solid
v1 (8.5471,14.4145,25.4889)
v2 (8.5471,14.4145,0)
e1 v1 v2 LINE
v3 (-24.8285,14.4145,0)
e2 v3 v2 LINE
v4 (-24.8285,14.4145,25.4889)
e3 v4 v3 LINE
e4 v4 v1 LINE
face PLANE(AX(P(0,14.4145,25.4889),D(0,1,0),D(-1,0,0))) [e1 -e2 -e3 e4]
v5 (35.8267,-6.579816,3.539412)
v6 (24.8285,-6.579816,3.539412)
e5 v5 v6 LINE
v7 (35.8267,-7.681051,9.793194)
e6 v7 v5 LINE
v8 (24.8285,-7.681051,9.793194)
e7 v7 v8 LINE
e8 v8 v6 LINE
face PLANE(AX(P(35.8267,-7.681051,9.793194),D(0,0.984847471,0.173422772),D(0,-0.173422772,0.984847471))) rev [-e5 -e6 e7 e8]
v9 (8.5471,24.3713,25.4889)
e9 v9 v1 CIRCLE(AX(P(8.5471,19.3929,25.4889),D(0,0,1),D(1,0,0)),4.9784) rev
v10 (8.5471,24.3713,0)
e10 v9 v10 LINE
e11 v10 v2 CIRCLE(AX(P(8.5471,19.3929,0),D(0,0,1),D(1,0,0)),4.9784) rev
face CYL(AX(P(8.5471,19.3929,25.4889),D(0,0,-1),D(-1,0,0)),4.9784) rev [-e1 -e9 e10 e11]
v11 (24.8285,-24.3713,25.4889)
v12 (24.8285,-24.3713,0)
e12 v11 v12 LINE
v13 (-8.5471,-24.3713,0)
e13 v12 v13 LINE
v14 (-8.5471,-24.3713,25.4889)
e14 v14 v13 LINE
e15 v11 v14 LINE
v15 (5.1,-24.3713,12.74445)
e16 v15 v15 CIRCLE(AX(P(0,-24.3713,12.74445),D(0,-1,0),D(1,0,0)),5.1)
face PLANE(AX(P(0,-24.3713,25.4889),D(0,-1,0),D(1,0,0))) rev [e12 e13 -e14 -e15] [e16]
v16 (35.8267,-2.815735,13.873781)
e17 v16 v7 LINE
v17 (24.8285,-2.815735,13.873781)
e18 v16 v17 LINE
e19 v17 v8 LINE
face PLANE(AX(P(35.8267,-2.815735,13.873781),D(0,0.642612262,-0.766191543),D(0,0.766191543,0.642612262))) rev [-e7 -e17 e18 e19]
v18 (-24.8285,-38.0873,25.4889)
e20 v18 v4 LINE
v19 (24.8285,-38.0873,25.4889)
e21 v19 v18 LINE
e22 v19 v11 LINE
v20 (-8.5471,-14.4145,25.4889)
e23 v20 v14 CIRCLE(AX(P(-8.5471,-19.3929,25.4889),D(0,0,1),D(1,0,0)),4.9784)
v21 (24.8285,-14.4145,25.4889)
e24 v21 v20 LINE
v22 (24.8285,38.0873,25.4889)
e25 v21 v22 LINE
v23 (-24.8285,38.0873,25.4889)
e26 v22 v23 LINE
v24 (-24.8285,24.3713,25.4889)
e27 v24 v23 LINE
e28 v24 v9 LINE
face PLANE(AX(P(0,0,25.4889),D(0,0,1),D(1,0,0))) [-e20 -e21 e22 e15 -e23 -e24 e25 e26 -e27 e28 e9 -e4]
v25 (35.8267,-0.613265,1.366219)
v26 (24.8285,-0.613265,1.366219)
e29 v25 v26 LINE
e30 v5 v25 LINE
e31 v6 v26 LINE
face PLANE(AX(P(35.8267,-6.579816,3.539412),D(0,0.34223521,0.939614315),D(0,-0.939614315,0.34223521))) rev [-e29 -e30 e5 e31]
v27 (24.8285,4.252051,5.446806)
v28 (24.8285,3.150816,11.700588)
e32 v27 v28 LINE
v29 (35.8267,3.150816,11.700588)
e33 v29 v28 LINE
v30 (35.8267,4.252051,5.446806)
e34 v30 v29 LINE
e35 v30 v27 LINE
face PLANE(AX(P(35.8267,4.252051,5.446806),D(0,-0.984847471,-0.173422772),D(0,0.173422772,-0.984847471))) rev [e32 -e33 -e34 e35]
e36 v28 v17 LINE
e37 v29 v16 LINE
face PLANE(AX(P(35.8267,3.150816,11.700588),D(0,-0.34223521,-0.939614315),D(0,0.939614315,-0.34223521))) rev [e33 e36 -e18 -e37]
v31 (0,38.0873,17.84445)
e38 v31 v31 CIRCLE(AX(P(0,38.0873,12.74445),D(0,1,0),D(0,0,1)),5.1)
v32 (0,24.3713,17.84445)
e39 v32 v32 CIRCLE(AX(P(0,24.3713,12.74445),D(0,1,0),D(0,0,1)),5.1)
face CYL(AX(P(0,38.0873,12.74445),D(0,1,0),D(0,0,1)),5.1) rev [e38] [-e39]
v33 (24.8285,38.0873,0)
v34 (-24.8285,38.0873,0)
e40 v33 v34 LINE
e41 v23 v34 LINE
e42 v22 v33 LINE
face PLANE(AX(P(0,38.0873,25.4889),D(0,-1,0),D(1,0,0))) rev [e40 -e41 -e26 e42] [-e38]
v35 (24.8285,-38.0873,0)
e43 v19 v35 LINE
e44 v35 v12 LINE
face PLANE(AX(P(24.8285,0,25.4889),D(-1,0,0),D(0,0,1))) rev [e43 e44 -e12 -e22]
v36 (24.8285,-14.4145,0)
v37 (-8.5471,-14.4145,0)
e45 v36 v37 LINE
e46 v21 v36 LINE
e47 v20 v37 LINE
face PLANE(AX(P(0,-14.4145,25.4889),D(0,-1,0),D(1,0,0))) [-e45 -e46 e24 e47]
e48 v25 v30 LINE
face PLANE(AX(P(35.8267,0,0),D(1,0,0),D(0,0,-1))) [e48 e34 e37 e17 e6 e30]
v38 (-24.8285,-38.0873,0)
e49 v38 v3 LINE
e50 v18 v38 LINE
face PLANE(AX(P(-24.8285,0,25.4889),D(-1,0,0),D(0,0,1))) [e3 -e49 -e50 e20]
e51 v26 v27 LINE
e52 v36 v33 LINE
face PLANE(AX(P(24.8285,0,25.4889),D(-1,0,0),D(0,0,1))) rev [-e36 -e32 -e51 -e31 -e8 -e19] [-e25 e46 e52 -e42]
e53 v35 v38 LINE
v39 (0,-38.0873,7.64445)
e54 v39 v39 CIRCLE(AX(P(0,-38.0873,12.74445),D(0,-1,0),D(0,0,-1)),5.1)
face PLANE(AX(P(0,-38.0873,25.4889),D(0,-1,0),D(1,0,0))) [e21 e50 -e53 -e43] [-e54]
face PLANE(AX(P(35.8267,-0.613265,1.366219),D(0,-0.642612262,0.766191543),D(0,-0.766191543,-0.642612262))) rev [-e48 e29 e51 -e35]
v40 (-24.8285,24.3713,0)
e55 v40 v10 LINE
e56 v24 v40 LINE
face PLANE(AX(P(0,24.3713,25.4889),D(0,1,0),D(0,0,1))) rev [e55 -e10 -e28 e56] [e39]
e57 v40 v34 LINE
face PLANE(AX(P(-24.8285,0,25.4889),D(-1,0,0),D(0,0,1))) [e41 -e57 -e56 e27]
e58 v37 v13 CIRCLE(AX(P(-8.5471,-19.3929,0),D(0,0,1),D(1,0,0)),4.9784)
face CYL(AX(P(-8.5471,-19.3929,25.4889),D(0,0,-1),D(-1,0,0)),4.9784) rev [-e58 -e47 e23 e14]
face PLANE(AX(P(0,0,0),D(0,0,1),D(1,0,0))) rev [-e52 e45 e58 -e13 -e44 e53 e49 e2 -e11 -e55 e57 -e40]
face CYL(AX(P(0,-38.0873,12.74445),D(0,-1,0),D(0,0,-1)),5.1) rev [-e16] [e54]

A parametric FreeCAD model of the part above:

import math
import FreeCAD as App
import Part
import Sketcher

V = App.Vector
Q = App.Units.Quantity

doc = App.newDocument("Part")
params = doc.addObject("Spreadsheet::Sheet", "Params")
for row, (alias, value) in enumerate([
    ("sketch1_radius", "0.196 in"),
    ("sketch1_height", "0.54 in"),
    ("sketch1_width", "1.955 in"),
    ("sketch1_width2", "1.314 in"),
    ("sketch1_height2", "2.067 in"),
    ("pad1_length", "1.0035 in"),
    ("sketch2_length", "0.25 in"),
    ("pad2_length", "0.433 in"),
    ("hole_diameter", "10.2 mm"),
    ("hole_depth", "0.75 in"),
    ("hole2_diameter", "10.2 mm"),
    ("hole2_depth", "0.75 in"),
], start=1):
    params.set(f"A{row}", alias)
    params.set(f"B{row}", "=" + value)
    params.setAlias(f"B{row}", alias)

body = doc.addObject("PartDesign::Body", "Body")

# Sketch on XY plane
sketch1 = body.newObject("Sketcher::SketchObject", "Sketch")
sketch1.AttachmentSupport = (doc.getObject("XY_Plane"), [""])
sketch1.MapMode = "FlatFace"
sketch1.addGeometry(Part.LineSegment(V(-24.8, -38.1, 0), V(24.8, -38.1, 0)), False)
sketch1.addGeometry(Part.LineSegment(V(24.8, -38.1, 0), V(24.8, -24.4, 0)), False)
sketch1.addGeometry(Part.LineSegment(V(24.8, -24.4, 0), V(-8.5, -24.4, 0)), False)
sketch1.addGeometry(Part.ArcOfCircle(Part.Circle(V(-8.5, -19.4, 0), V(0, 0, 1), 5), math.radians(90), math.radians(270)), False)
sketch1.addGeometry(Part.LineSegment(V(-8.5, -14.4, 0), V(24.8, -14.4, 0)), False)
sketch1.addGeometry(Part.LineSegment(V(24.8, -14.4, 0), V(24.8, 38.1, 0)), False)
sketch1.addGeometry(Part.LineSegment(V(24.8, 38.1, 0), V(-24.8, 38.1, 0)), False)
sketch1.addGeometry(Part.LineSegment(V(-24.8, 38.1, 0), V(-24.8, 24.4, 0)), False)
sketch1.addGeometry(Part.LineSegment(V(-24.8, 24.4, 0), V(8.5, 24.4, 0)), False)
sketch1.addGeometry(Part.ArcOfCircle(Part.Circle(V(8.5, 19.4, 0), V(0, 0, 1), 5), math.radians(-90), math.radians(90)), False)
sketch1.addGeometry(Part.LineSegment(V(8.5, 14.4, 0), V(-24.8, 14.4, 0)), False)
sketch1.addGeometry(Part.LineSegment(V(-24.8, 14.4, 0), V(-24.8, -38.1, 0)), False)
sketch1.addConstraint(Sketcher.Constraint("Coincident", 0, 2, 1, 1))
sketch1.addConstraint(Sketcher.Constraint("Coincident", 1, 2, 2, 1))
sketch1.addConstraint(Sketcher.Constraint("Tangent", 2, 2, 3, 2))
sketch1.addConstraint(Sketcher.Constraint("Tangent", 3, 1, 4, 1))
sketch1.addConstraint(Sketcher.Constraint("Coincident", 4, 2, 5, 1))
sketch1.addConstraint(Sketcher.Constraint("Coincident", 5, 2, 6, 1))
sketch1.addConstraint(Sketcher.Constraint("Coincident", 6, 2, 7, 1))
sketch1.addConstraint(Sketcher.Constraint("Coincident", 7, 2, 8, 1))
sketch1.addConstraint(Sketcher.Constraint("Tangent", 8, 2, 9, 2))
sketch1.addConstraint(Sketcher.Constraint("Tangent", 9, 1, 10, 1))
sketch1.addConstraint(Sketcher.Constraint("Coincident", 10, 2, 11, 1))
sketch1.addConstraint(Sketcher.Constraint("Coincident", 11, 2, 0, 1))
sketch1.addConstraint(Sketcher.Constraint("Horizontal", 0))
sketch1.addConstraint(Sketcher.Constraint("Vertical", 1))
sketch1.addConstraint(Sketcher.Constraint("Horizontal", 2))
sketch1.addConstraint(Sketcher.Constraint("Horizontal", 4))
sketch1.addConstraint(Sketcher.Constraint("Vertical", 5))
sketch1.addConstraint(Sketcher.Constraint("Horizontal", 6))
sketch1.addConstraint(Sketcher.Constraint("Vertical", 7))
sketch1.addConstraint(Sketcher.Constraint("Horizontal", 8))
sketch1.addConstraint(Sketcher.Constraint("Horizontal", 10))
sketch1.addConstraint(Sketcher.Constraint("Vertical", 11))
sketch1.addConstraint(Sketcher.Constraint("Equal", 3, 9))
sketch1.addConstraint(Sketcher.Constraint("Symmetric", 3, 3, 9, 3, -1, 1))
sketch1.addConstraint(Sketcher.Constraint("Symmetric", 0, 2, 6, 2, -1, 1))
sketch1.addConstraint(Sketcher.Constraint("Vertical", 1, 2, 4, 2))
sketch1.addConstraint(Sketcher.Constraint("Vertical", 7, 2, 10, 2))
sketch1.addConstraint(Sketcher.Constraint("Radius", 3, Q("0.196 in")))
sketch1.addConstraint(Sketcher.Constraint("DistanceY", 1, 1, 1, 2, Q("0.54 in")))
sketch1.addConstraint(Sketcher.Constraint("DistanceX", 0, 1, 0, 2, Q("1.955 in")))
sketch1.addConstraint(Sketcher.Constraint("DistanceX", 2, 2, 2, 1, Q("1.314 in")))
sketch1.addConstraint(Sketcher.Constraint("DistanceY", 5, 1, 5, 2, Q("2.067 in")))
sketch1.setExpression("Constraints[27]", "Params.sketch1_radius")
sketch1.setExpression("Constraints[28]", "Params.sketch1_height")
sketch1.setExpression("Constraints[29]", "Params.sketch1_width")
sketch1.setExpression("Constraints[30]", "Params.sketch1_width2")
sketch1.setExpression("Constraints[31]", "Params.sketch1_height2")
pad1 = body.newObject("PartDesign::Pad", "Pad")
pad1.Profile = sketch1
pad1.setExpression("Length", "Params.pad1_length")

# Sketch on YZ plane
sketch2 = body.newObject("Sketcher::SketchObject", "Sketch001")
sketch2.AttachmentSupport = (doc.getObject("YZ_Plane"), [""])
sketch2.MapMode = "FlatFace"
sketch2.AttachmentOffset = App.Placement(V(0, 0, 0.9775 * 25.4), App.Rotation())
sketch2.addGeometry(Part.LineSegment(V(3, 12, 0), V(-3, 14, 0)), False)
sketch2.addGeometry(Part.LineSegment(V(-3, 14, 0), V(-8, 10, 0)), False)
sketch2.addGeometry(Part.LineSegment(V(-8, 10, 0), V(-7, 4, 0)), False)
sketch2.addGeometry(Part.LineSegment(V(-7, 4, 0), V(-1, 1, 0)), False)
sketch2.addGeometry(Part.LineSegment(V(-1, 1, 0), V(4, 5, 0)), False)
sketch2.addGeometry(Part.LineSegment(V(4, 5, 0), V(3, 12, 0)), False)
sketch2.addConstraint(Sketcher.Constraint("Coincident", 0, 2, 1, 1))
sketch2.addConstraint(Sketcher.Constraint("Coincident", 1, 2, 2, 1))
sketch2.addConstraint(Sketcher.Constraint("Coincident", 2, 2, 3, 1))
sketch2.addConstraint(Sketcher.Constraint("Coincident", 3, 2, 4, 1))
sketch2.addConstraint(Sketcher.Constraint("Coincident", 4, 2, 5, 1))
sketch2.addConstraint(Sketcher.Constraint("Coincident", 5, 2, 0, 1))
sketch2.addConstraint(Sketcher.Constraint("Parallel", 0, 3))
sketch2.addConstraint(Sketcher.Constraint("Parallel", 1, 4))
sketch2.addConstraint(Sketcher.Constraint("Parallel", 2, 5))
sketch2.addConstraint(Sketcher.Constraint("Equal", 0, 1))
sketch2.addConstraint(Sketcher.Constraint("Equal", 1, 2))
sketch2.addConstraint(Sketcher.Constraint("Equal", 2, 3))
sketch2.addConstraint(Sketcher.Constraint("Distance", 0, Q("0.25 in")))
sketch2.addConstraint(Sketcher.Constraint("DistanceX", 1, 2, 4, 2, Q("11.933102 mm")))
sketch2.addConstraint(Sketcher.Constraint("DistanceY", -1, 1, 0, 2, Q("13.873781 mm")))
sketch2.addConstraint(Sketcher.Constraint("DistanceX", 1, 2, -1, 1, Q("7.681051 mm")))
sketch2.addConstraint(Sketcher.Constraint("DistanceY", -1, 1, 3, 2, Q("1.366219 mm")))
sketch2.addConstraint(Sketcher.Constraint("DistanceY", 2, 2, 1, 2, Q("6.253781 mm")))
sketch2.setExpression("Constraints[12]", "Params.sketch2_length")
pad2 = body.newObject("PartDesign::Pad", "Pad001")
pad2.Profile = sketch2
pad2.setExpression("Length", "Params.pad2_length")

# Sketch on XZ plane
sketch3 = body.newObject("Sketcher::SketchObject", "Sketch002")
sketch3.AttachmentSupport = (doc.getObject("XZ_Plane"), [""])
sketch3.MapMode = "FlatFace"
sketch3.AttachmentOffset = App.Placement(V(0, 0, -1.4995 * 25.4), App.Rotation())
sketch3.addGeometry(Part.Circle(V(0, 13, 0), V(0, 0, 1), 5), False)
sketch3.addConstraint(Sketcher.Constraint("PointOnObject", 0, 3, -2))
sketch3.addConstraint(Sketcher.Constraint("Diameter", 0, Q("10.2 mm")))
sketch3.addConstraint(Sketcher.Constraint("DistanceY", -1, 1, 0, 3, Q("12.74445 mm")))
doc.recompute()
hole = body.newObject("PartDesign::Hole", "Hole")
hole.Profile = sketch3
hole.ThreadType = "None"
hole.setExpression("Diameter", "Params.hole_diameter")
hole.DepthType = "Dimension"
hole.setExpression("Depth", "Params.hole_depth")
hole.DrillPoint = "Angled"
hole.DrillPointAngle = 118
hole.Reversed = True

# Sketch on XZ plane
sketch4 = body.newObject("Sketcher::SketchObject", "Sketch003")
sketch4.AttachmentSupport = (doc.getObject("XZ_Plane"), [""])
sketch4.MapMode = "FlatFace"
sketch4.AttachmentOffset = App.Placement(V(0, 0, 1.4995 * 25.4), App.Rotation())
sketch4.addGeometry(Part.Circle(V(0, 13, 0), V(0, 0, 1), 5), False)
sketch4.addConstraint(Sketcher.Constraint("PointOnObject", 0, 3, -2))
sketch4.addConstraint(Sketcher.Constraint("Diameter", 0, Q("10.2 mm")))
sketch4.addConstraint(Sketcher.Constraint("DistanceY", -1, 1, 0, 3, Q("12.74445 mm")))
doc.recompute()
hole2 = body.newObject("PartDesign::Hole", "Hole001")
hole2.Profile = sketch4
hole2.ThreadType = "None"
hole2.setExpression("Diameter", "Params.hole2_diameter")
hole2.DepthType = "Dimension"
hole2.setExpression("Depth", "Params.hole2_depth")
hole2.DrillPoint = "Angled"
hole2.DrillPointAngle = 118

doc.recompute()
